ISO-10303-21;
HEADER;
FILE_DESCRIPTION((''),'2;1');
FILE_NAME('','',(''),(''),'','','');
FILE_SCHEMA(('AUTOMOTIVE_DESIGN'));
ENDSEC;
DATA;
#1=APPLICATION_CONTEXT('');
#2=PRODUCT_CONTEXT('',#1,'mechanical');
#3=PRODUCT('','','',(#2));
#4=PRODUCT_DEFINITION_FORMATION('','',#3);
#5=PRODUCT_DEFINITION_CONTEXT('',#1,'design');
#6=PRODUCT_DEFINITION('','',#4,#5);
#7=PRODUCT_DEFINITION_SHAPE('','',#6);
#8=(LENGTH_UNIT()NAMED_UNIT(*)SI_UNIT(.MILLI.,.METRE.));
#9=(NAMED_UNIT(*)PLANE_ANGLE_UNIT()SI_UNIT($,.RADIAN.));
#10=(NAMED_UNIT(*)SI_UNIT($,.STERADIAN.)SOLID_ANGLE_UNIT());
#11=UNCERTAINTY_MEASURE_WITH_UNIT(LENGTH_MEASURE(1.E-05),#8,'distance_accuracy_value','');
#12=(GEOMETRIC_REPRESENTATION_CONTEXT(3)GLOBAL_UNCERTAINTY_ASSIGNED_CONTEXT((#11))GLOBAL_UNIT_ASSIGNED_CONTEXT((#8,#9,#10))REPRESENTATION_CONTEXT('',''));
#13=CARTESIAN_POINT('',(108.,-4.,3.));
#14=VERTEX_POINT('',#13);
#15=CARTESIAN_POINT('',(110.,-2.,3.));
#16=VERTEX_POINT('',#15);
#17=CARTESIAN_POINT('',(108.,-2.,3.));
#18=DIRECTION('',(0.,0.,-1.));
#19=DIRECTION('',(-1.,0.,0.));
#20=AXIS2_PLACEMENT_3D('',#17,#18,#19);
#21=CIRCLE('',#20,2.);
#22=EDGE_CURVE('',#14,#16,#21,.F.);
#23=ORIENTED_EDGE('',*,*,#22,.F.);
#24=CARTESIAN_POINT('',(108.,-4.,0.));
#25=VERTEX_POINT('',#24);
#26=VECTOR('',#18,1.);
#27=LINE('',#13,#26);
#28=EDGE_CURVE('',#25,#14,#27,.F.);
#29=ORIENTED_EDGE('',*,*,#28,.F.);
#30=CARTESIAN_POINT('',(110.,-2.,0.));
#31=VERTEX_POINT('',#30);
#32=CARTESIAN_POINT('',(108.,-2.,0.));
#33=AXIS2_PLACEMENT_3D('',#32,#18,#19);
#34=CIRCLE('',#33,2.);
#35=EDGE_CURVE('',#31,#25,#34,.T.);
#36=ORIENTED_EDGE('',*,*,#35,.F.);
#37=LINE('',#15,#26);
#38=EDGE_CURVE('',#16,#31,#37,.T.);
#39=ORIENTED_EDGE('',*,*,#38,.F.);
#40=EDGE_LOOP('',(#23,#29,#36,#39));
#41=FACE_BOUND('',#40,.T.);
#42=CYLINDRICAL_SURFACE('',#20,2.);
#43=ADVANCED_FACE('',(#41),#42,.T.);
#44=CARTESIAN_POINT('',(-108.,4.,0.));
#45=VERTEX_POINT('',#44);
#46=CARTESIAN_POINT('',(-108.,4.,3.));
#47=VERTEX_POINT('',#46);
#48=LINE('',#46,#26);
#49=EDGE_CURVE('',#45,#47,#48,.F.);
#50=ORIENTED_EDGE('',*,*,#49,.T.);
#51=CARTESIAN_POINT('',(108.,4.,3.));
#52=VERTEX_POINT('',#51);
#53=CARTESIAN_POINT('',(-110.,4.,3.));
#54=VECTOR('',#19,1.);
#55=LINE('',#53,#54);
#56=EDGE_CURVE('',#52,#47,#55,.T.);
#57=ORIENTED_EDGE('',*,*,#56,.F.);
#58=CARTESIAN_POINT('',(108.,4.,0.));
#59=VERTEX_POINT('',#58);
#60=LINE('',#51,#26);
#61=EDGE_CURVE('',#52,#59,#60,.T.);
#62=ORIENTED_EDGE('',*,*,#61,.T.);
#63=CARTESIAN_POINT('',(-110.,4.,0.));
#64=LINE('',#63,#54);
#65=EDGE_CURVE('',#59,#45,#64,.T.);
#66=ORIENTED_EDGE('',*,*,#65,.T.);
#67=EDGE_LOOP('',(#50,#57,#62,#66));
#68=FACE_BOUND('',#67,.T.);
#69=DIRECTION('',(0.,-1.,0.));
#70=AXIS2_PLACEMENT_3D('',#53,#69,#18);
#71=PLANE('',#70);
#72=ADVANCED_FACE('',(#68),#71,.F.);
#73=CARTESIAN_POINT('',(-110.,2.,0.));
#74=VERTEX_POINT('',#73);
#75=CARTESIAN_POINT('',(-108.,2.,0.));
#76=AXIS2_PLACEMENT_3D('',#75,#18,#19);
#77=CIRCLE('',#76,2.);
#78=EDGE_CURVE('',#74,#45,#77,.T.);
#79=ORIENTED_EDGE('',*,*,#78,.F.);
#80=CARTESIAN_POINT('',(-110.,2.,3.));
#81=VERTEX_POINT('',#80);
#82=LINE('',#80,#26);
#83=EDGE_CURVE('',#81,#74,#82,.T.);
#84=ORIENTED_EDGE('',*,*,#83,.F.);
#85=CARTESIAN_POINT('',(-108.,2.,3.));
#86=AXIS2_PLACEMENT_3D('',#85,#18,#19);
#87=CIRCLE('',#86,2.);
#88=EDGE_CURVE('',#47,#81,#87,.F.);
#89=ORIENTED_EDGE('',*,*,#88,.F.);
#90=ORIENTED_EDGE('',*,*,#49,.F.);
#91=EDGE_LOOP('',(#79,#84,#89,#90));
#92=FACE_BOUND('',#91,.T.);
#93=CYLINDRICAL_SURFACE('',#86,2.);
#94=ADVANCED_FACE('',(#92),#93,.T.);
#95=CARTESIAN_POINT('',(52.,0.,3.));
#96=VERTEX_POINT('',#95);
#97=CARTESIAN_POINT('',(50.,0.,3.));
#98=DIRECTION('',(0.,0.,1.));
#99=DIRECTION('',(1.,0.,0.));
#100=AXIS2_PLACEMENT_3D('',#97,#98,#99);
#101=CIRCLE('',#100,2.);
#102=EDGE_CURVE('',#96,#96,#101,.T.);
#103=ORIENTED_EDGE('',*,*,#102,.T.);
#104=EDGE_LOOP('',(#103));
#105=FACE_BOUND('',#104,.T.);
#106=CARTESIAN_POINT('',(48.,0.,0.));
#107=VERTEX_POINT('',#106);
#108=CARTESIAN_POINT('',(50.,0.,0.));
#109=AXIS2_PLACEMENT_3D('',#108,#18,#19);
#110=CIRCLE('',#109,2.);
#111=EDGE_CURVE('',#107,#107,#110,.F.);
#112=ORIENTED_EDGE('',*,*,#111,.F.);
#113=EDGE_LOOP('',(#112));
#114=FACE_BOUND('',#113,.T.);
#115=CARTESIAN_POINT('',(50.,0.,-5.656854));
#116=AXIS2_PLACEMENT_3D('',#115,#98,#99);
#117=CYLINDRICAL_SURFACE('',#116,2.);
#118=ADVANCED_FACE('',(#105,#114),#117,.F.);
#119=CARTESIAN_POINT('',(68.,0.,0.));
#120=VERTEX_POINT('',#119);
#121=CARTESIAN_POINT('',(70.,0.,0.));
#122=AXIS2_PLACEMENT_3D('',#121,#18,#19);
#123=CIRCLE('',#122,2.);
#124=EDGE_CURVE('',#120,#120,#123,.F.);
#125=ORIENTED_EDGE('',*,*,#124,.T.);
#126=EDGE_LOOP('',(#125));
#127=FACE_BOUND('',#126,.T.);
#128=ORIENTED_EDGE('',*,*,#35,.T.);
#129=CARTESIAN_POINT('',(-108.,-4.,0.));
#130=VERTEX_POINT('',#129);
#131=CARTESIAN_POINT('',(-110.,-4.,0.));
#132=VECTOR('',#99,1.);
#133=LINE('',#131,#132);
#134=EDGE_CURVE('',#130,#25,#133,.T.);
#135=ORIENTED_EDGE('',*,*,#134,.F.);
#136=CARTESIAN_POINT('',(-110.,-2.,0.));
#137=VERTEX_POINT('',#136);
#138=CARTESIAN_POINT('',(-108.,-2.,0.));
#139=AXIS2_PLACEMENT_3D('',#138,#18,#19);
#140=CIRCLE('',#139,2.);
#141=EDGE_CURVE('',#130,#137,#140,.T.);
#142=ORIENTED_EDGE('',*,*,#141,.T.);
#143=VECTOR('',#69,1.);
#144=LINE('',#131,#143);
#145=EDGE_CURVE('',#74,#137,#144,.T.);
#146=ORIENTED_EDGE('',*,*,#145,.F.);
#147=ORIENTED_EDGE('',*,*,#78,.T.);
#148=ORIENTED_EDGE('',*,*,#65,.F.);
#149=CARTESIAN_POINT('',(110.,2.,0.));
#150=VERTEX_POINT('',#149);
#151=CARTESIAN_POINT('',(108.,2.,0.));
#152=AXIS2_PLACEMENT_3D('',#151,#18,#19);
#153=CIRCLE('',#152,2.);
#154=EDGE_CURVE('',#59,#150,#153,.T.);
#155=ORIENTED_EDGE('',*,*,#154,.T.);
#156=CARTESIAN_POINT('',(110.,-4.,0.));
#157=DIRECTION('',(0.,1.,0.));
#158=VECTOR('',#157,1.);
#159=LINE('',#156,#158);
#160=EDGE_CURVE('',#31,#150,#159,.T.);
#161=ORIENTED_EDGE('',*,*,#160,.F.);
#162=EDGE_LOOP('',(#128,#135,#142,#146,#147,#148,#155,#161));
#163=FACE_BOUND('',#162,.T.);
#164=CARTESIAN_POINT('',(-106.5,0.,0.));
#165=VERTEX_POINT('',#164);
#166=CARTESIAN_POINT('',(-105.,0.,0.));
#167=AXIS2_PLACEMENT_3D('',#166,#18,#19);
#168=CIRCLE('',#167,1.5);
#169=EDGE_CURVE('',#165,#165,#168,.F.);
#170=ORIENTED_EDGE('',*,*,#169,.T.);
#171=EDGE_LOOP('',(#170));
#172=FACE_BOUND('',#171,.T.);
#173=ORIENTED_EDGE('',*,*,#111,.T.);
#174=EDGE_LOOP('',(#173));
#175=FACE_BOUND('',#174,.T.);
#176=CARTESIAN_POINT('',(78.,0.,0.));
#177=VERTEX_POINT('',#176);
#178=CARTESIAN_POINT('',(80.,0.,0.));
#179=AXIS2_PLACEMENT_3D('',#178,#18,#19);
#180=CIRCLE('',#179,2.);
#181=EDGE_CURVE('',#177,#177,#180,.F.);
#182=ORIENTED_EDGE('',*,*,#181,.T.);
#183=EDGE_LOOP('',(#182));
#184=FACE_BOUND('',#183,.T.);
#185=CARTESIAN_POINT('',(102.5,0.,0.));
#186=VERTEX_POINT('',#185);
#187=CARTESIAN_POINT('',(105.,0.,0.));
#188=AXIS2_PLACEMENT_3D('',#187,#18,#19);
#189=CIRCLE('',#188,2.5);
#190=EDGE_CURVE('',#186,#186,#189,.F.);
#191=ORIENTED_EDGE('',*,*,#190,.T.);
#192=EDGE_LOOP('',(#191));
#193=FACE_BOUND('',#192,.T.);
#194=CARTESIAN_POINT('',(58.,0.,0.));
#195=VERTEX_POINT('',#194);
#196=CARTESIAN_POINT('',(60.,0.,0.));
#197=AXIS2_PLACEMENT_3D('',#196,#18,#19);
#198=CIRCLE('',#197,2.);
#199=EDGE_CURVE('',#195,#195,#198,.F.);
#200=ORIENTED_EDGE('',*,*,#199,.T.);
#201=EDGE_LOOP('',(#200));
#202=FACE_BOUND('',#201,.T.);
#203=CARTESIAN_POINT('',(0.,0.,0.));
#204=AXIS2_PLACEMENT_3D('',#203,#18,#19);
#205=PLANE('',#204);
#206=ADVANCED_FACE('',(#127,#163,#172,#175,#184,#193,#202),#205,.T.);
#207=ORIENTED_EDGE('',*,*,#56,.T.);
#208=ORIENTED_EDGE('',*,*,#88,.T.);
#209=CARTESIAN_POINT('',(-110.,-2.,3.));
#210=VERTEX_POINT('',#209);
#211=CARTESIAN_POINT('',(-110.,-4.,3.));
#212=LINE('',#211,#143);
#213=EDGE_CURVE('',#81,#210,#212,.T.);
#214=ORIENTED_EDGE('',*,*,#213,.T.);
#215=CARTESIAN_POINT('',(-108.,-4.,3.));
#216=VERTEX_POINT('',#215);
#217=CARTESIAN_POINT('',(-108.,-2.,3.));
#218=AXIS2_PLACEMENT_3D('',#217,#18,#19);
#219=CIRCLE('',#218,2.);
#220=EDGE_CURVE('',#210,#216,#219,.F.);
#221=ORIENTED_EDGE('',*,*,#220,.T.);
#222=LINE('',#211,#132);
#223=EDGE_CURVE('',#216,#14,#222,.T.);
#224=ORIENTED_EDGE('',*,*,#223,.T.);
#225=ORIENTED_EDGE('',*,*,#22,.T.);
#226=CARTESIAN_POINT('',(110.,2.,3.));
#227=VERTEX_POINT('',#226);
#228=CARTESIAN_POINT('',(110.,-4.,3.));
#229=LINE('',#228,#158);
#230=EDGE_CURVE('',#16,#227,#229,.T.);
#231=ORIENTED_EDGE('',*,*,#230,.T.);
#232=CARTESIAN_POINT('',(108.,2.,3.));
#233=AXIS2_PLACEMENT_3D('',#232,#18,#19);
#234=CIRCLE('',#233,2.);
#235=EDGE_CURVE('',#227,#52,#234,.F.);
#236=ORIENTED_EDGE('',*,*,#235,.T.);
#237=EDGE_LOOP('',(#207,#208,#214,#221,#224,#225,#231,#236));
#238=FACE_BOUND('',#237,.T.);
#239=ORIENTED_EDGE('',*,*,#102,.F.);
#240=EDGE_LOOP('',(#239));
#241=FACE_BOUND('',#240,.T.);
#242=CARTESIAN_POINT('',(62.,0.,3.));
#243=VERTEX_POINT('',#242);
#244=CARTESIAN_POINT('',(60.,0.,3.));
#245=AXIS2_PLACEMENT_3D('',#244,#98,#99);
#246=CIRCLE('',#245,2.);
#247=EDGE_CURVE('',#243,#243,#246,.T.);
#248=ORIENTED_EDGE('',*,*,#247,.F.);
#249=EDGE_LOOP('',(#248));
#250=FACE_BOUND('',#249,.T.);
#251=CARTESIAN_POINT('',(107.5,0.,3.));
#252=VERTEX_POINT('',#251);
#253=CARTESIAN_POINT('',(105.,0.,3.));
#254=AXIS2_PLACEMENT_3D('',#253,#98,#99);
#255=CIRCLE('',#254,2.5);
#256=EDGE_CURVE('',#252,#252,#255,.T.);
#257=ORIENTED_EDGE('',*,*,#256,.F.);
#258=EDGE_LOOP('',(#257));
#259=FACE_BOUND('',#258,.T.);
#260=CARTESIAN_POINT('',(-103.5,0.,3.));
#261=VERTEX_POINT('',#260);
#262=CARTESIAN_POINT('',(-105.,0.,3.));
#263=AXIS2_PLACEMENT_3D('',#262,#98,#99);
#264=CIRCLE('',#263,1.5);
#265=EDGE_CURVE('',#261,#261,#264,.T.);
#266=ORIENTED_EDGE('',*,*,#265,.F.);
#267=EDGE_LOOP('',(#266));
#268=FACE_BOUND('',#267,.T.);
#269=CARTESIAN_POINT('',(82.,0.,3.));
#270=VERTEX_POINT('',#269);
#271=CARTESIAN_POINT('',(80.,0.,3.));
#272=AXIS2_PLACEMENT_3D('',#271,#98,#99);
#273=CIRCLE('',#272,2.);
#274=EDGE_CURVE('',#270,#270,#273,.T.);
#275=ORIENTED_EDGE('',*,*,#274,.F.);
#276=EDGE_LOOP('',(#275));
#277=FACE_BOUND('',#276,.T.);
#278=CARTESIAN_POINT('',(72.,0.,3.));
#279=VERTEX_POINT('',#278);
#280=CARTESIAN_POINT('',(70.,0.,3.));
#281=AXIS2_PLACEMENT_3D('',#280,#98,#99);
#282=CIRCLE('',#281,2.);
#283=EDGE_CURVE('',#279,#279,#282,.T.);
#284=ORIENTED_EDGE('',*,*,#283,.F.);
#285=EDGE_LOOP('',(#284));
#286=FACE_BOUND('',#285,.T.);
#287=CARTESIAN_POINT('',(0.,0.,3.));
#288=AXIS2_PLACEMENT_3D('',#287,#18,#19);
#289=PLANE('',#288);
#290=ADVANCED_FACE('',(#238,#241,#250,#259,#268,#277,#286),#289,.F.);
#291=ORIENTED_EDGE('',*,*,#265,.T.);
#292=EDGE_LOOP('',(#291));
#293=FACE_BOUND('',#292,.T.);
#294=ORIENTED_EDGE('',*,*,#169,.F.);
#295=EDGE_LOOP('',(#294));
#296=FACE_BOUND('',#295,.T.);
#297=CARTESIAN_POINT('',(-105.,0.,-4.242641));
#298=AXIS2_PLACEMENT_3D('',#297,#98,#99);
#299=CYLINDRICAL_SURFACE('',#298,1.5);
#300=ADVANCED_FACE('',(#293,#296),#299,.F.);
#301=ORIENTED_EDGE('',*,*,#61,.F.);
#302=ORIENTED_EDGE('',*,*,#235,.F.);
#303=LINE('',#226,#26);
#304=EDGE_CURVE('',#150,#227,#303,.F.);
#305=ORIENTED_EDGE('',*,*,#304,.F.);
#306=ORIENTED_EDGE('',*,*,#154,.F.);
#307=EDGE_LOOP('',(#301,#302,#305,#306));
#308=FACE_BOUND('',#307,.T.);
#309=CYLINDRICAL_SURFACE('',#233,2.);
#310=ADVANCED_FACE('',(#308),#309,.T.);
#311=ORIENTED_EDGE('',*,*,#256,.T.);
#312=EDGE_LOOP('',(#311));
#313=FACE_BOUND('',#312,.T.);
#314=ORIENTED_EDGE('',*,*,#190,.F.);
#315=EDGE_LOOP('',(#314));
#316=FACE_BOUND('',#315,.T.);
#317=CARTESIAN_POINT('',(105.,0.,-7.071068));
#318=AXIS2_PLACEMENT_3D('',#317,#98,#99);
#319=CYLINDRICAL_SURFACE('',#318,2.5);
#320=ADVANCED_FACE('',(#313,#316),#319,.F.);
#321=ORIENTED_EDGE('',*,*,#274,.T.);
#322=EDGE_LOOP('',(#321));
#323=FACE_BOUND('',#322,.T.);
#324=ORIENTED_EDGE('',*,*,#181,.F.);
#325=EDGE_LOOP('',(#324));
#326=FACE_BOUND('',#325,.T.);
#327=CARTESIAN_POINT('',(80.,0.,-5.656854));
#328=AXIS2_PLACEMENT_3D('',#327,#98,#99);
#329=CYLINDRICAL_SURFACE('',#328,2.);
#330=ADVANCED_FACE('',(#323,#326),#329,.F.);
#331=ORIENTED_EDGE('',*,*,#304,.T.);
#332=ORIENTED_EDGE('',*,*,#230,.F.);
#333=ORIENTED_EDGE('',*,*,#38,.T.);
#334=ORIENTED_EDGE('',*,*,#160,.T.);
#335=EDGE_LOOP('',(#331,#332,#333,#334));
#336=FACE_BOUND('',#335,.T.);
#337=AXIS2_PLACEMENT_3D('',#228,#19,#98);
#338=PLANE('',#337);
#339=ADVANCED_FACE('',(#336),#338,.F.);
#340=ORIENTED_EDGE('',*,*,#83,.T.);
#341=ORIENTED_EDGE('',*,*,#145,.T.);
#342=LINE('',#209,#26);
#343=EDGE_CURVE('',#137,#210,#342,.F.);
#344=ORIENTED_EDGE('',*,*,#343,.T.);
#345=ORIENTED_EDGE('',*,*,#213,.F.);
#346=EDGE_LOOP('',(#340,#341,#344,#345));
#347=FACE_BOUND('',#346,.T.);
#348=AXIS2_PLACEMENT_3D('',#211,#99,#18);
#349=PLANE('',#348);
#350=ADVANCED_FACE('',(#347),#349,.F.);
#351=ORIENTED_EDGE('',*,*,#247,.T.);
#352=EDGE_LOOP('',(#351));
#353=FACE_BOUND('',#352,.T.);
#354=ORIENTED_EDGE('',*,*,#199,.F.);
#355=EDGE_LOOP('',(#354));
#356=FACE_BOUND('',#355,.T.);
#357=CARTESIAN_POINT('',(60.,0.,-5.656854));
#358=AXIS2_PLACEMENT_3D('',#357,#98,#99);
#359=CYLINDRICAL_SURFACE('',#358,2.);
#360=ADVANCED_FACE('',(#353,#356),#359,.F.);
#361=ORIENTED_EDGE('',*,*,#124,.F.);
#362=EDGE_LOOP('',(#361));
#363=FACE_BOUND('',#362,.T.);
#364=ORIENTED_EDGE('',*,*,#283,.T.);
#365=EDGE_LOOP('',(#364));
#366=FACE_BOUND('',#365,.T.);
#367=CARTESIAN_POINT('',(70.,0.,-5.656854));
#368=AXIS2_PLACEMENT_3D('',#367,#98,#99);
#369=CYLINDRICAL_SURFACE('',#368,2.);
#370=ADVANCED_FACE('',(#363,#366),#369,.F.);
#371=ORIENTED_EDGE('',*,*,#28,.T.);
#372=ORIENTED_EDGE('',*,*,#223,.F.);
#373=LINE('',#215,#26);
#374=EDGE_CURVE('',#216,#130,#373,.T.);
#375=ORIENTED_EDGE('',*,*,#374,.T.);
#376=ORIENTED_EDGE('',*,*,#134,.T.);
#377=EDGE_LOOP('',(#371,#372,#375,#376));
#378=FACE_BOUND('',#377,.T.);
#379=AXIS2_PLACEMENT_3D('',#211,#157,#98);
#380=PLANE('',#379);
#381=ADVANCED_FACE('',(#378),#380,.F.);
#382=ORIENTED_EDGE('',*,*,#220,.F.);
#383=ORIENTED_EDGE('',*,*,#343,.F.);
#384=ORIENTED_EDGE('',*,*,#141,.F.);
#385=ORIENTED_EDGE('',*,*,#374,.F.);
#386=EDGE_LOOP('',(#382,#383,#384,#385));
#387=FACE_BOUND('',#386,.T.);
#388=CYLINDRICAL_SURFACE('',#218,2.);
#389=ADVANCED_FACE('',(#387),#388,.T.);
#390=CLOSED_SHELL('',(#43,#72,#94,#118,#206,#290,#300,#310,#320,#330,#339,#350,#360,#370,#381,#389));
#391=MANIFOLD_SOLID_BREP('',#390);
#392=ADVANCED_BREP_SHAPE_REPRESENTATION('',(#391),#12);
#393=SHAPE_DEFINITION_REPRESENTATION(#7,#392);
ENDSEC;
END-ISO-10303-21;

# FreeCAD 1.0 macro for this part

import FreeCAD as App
import Part
import Sketcher

V = App.Vector
Q = App.Units.Quantity


def edges_at(feature, points):
    """Names of the edges that pass closest to the given points."""
    edges = feature.Shape.Edges
    near = lambda p: min(range(len(edges)), key=lambda i: edges[i].distToShape(Part.Vertex(*p))[0])
    return sorted({f"Edge{near(p) + 1}" for p in points})


def add_polygon(sketch, points):
    """Adds a closed chain of lines whose ends are joined by coincident constraints."""
    first, n = sketch.GeometryCount, len(points)
    for a, b in zip(points, points[1:] + points[:1]):
        sketch.addGeometry(Part.LineSegment(App.Vector(*a, 0), App.Vector(*b, 0)), False)
    for i in range(n):
        sketch.addConstraint(Sketcher.Constraint("Coincident", first + i, 2, first + (i + 1) % n, 1))

doc = App.newDocument("Part")
body = doc.addObject("PartDesign::Body", "Body")

# Sketch on XY plane
sketch1 = body.newObject("Sketcher::SketchObject", "Sketch")
sketch1.AttachmentSupport = (doc.getObject("XY_Plane"), [""])
sketch1.MapMode = "FlatFace"
add_polygon(sketch1, [(-110, 4), (-110, -4), (110, -4), (110, 4)])  # lines 0-3
sketch1.addConstraint([
    Sketcher.Constraint("Vertical", 0),
    Sketcher.Constraint("Horizontal", 1),
    Sketcher.Constraint("Vertical", 2),
    Sketcher.Constraint("Horizontal", 3),
    Sketcher.Constraint("Symmetric", 0, 2, 2, 2, -1, 1),
    Sketcher.Constraint("DistanceX", 1, 1, 1, 2, Q("220 mm")),
    Sketcher.Constraint("DistanceY", 0, 2, 0, 1, Q("8 mm")),
])
pad1 = body.newObject("PartDesign::Pad", "Pad")
pad1.Profile = sketch1
pad1.Length = 3
doc.recompute()

fillet = body.newObject("PartDesign::Fillet", "Fillet")
fillet.Base = (pad1, edges_at(pad1, [
    (110, -4, 1.5),
    (-110, -4, 1.5),
    (-110, 4, 1.5),
    (110, 4, 1.5),
]))
fillet.Radius = 2

# Sketch on XY plane
sketch2 = body.newObject("Sketcher::SketchObject", "Sketch001")
sketch2.AttachmentSupport = (doc.getObject("XY_Plane"), [""])
sketch2.MapMode = "FlatFace"
sketch2.AttachmentOffset = App.Placement(V(0, 0, 3), App.Rotation())
sketch2.addGeometry(Part.Circle(V(-105, 0, 0), V(0, 0, 1), 1.5), False)
sketch2.addConstraint([
    Sketcher.Constraint("PointOnObject", 0, 3, -1),
    Sketcher.Constraint("Diameter", 0, Q("3 mm")),
    Sketcher.Constraint("DistanceX", 0, 3, -1, 1, Q("105 mm")),
])
pocket1 = body.newObject("PartDesign::Pocket", "Pocket")
pocket1.Profile = sketch2
pocket1.Length = 3

# Sketch on XY plane
sketch3 = body.newObject("Sketcher::SketchObject", "Sketch002")
sketch3.AttachmentSupport = (doc.getObject("XY_Plane"), [""])
sketch3.MapMode = "FlatFace"
sketch3.AttachmentOffset = App.Placement(V(0, 0, 3), App.Rotation())
sketch3.addGeometry(Part.Circle(V(105, 0, 0), V(0, 0, 1), 2.5), False)
sketch3.addConstraint([
    Sketcher.Constraint("PointOnObject", 0, 3, -1),
    Sketcher.Constraint("Diameter", 0, Q("5 mm")),
    Sketcher.Constraint("DistanceX", -1, 1, 0, 3, Q("105 mm")),
])
pocket2 = body.newObject("PartDesign::Pocket", "Pocket001")
pocket2.Profile = sketch3
pocket2.Length = 3

# Sketch on XY plane
sketch4 = body.newObject("Sketcher::SketchObject", "Sketch003")
sketch4.AttachmentSupport = (doc.getObject("XY_Plane"), [""])
sketch4.MapMode = "FlatFace"
sketch4.AttachmentOffset = App.Placement(V(0, 0, 3), App.Rotation())
sketch4.addGeometry(Part.Circle(V(80, 0, 0), V(0, 0, 1), 2), False)
sketch4.addConstraint([
    Sketcher.Constraint("PointOnObject", 0, 3, -1),
    Sketcher.Constraint("Diameter", 0, Q("4 mm")),
    Sketcher.Constraint("DistanceX", -1, 1, 0, 3, Q("80 mm")),
])
pocket3 = body.newObject("PartDesign::Pocket", "Pocket002")
pocket3.Profile = sketch4
pocket3.Length = 3
doc.recompute()

linearpattern = body.newObject("PartDesign::LinearPattern", "LinearPattern")
linearpattern.Originals = [pocket3]
linearpattern.Direction = (doc.getObject("X_Axis"), [""])
linearpattern.Mode = "offset"
linearpattern.Offset = 10
linearpattern.Occurrences = 4
linearpattern.Reversed = True
body.Tip = linearpattern

doc.recompute()
